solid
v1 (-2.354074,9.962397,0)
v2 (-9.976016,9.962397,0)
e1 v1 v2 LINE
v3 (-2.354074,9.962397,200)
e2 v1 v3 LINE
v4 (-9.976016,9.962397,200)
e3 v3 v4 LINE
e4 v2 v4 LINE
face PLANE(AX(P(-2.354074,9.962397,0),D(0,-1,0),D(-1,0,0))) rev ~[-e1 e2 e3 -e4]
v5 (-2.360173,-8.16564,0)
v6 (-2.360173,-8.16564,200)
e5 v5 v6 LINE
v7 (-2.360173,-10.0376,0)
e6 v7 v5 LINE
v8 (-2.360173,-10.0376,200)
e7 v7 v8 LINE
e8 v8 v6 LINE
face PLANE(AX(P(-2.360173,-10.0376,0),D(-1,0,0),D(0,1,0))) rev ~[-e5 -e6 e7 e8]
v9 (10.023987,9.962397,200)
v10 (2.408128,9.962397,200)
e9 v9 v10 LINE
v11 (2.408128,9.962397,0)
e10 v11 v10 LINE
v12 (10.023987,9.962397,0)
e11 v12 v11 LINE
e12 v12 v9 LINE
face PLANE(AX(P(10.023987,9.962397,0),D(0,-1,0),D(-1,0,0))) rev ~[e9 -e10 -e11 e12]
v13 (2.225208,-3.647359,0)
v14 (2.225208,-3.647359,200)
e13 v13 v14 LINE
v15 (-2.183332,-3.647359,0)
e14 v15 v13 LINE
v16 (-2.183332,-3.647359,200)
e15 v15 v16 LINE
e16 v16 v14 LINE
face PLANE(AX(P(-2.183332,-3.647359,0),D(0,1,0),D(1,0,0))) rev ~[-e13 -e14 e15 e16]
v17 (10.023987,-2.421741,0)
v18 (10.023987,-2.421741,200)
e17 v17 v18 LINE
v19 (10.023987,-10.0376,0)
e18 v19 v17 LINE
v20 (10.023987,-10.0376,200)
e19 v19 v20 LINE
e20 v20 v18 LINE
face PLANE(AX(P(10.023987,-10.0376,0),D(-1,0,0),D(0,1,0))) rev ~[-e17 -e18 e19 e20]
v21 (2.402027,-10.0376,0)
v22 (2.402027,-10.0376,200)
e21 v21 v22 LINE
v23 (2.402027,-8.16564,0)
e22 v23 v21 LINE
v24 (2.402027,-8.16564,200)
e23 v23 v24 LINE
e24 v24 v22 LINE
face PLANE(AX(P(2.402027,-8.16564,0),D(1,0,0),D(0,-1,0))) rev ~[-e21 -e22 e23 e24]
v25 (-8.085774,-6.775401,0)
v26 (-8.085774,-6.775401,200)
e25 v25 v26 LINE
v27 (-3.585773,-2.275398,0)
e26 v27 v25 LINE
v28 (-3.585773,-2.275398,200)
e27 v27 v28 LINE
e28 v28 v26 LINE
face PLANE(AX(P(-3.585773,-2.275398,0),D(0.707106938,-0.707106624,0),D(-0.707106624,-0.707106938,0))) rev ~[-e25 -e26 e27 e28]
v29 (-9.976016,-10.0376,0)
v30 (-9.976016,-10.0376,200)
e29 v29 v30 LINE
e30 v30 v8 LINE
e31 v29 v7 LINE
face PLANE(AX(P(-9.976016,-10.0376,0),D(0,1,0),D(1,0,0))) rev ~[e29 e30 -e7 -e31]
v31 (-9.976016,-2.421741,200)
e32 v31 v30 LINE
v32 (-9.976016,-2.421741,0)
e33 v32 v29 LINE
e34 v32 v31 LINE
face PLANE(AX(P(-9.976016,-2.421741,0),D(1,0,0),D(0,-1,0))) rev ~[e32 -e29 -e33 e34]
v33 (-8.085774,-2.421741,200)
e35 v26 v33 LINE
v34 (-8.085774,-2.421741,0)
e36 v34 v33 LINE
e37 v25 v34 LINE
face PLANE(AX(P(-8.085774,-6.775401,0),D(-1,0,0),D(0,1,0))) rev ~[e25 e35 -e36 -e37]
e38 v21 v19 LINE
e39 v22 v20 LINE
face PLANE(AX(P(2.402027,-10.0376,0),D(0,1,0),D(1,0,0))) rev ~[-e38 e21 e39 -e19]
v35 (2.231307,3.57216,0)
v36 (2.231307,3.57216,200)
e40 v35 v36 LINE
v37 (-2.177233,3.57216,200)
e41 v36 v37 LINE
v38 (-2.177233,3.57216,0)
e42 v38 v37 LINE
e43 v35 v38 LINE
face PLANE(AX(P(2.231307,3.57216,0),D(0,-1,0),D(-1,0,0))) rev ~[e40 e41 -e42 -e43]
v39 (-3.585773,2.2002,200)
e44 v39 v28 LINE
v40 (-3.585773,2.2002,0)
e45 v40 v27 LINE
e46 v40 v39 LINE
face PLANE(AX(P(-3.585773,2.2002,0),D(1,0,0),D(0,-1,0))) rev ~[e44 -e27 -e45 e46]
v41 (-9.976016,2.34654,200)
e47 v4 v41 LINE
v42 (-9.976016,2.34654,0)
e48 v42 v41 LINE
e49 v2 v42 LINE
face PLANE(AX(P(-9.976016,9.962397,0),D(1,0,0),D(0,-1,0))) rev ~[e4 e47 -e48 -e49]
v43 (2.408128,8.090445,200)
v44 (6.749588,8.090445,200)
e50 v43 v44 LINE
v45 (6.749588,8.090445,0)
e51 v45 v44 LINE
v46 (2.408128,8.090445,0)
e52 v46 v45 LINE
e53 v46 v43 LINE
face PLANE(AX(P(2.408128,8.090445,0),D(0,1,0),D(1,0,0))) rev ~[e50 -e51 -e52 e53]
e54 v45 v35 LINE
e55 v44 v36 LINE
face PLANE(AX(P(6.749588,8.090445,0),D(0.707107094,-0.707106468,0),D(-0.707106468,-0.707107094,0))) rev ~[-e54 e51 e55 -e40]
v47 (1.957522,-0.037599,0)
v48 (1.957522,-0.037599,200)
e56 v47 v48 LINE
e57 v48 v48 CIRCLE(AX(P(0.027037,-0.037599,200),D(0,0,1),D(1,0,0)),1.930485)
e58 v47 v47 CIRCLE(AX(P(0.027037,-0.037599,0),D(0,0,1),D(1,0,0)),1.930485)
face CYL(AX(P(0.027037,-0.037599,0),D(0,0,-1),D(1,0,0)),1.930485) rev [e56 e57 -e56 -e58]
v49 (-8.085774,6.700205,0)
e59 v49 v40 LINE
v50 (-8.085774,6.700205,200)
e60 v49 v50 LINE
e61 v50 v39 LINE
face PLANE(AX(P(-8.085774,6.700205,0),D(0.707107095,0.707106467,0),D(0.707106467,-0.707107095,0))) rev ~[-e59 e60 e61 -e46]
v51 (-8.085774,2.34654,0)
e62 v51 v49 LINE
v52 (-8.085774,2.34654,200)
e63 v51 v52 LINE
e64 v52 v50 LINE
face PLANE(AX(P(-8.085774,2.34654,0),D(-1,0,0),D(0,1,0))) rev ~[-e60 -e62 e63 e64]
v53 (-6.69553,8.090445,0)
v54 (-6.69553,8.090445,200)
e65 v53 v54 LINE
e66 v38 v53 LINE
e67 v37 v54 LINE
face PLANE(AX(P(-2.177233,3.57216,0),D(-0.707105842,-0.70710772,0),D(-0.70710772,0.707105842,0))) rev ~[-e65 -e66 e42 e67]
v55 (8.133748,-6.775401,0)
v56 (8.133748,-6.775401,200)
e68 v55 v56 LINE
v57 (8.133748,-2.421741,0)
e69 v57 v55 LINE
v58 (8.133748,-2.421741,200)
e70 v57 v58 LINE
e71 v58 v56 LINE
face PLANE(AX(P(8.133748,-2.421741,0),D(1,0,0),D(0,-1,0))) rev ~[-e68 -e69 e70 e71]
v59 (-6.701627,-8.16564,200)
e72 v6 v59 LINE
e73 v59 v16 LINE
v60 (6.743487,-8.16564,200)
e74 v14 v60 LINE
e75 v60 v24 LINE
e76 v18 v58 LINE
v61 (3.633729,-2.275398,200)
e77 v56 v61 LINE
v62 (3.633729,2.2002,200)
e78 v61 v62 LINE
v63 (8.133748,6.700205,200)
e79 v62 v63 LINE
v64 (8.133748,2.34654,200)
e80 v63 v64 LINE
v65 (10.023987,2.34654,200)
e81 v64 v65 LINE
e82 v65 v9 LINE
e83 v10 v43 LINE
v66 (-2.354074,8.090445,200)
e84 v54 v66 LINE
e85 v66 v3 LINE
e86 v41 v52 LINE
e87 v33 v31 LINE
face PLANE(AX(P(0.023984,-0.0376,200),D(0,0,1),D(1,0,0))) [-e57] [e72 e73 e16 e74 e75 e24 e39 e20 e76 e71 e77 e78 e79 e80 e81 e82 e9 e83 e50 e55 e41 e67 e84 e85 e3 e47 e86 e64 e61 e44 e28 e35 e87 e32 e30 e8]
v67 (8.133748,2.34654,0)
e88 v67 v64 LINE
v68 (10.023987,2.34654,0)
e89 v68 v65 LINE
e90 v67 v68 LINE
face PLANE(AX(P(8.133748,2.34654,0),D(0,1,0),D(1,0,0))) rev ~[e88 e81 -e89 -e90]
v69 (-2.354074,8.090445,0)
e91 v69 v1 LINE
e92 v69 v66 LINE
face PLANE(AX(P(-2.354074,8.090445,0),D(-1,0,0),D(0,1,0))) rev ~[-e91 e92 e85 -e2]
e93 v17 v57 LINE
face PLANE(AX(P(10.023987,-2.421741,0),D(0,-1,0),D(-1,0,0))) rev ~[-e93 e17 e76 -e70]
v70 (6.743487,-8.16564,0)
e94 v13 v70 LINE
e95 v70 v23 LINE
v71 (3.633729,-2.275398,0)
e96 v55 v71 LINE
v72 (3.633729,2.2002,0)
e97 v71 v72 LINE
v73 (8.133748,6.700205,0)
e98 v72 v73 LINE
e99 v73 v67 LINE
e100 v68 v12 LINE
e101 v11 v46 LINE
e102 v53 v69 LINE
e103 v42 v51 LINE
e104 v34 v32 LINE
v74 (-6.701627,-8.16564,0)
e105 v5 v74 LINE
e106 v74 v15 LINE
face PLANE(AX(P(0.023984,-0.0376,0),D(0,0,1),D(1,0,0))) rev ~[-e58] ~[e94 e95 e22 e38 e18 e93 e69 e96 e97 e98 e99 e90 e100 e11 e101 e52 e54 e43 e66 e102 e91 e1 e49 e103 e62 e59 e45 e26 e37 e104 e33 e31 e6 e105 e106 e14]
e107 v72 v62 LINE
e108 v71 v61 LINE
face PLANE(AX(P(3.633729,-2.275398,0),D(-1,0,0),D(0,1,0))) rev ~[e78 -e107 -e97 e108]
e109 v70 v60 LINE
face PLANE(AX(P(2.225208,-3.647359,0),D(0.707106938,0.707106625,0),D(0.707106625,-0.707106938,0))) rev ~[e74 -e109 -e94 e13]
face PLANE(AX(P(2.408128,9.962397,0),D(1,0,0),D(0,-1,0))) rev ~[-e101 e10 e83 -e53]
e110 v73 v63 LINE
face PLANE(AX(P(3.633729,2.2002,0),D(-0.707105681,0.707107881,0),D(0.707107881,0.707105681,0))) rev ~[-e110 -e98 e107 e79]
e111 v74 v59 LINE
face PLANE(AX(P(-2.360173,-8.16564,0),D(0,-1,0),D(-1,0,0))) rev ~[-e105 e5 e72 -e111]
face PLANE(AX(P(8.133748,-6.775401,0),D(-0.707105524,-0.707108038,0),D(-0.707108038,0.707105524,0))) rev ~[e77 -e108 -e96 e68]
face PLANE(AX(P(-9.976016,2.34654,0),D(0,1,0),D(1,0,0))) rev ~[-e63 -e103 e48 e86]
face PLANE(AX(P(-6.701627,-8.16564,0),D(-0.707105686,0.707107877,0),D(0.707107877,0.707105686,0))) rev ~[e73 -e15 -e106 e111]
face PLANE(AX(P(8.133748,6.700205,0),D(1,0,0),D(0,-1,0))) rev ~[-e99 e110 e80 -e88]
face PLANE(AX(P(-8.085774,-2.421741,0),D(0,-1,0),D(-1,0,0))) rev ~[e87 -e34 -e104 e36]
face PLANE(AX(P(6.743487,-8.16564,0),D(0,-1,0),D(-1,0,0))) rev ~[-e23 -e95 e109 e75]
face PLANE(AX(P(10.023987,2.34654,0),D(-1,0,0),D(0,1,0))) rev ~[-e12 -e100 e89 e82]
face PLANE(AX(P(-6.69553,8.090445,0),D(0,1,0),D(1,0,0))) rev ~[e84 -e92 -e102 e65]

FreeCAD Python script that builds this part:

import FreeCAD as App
import Part
import Sketcher

V = App.Vector


def add_polygon(sketch, points):
    """Adds a closed chain of lines whose ends are joined by coincident constraints."""
    first, n = sketch.GeometryCount, len(points)
    for a, b in zip(points, points[1:] + points[:1]):
        sketch.addGeometry(Part.LineSegment(App.Vector(*a, 0), App.Vector(*b, 0)), False)
    for i in range(n):
        sketch.addConstraint(Sketcher.Constraint("Coincident", first + i, 2, first + (i + 1) % n, 1))

doc = App.newDocument("Part")
params = doc.addObject("Spreadsheet::Sheet", "Params")
for row, (alias, value) in enumerate([
    ("pad1_length", "200 mm"),
], start=1):
    params.set(f"A{row}", alias)
    params.set(f"B{row}", "=" + value)
    params.setAlias(f"B{row}", alias)

body = doc.addObject("PartDesign::Body", "Body")

# Sketch on XY plane
sketch1 = body.newObject("Sketcher::SketchObject", "Sketch")
sketch1.AttachmentSupport = (doc.getObject("XY_Plane"), [""])
sketch1.MapMode = "FlatFace"
add_polygon(sketch1, [(-2.354074, 9.962397), (-9.976016, 9.962397), (-9.976016, 2.34654), (-8.085774, 2.34654), (-8.085774, 6.700205), (-3.585773, 2.2002), (-3.585773, -2.275398), (-8.085774, -6.775401), (-8.085774, -2.421741), (-9.976016, -2.421741), (-9.976016, -10.0376), (-2.360173, -10.0376), (-2.360173, -8.16564), (-6.701627, -8.16564), (-2.183332, -3.647359), (2.225208, -3.647359), (6.743487, -8.16564), (2.402027, -8.16564), (2.402027, -10.0376), (10.023987, -10.0376), (10.023987, -2.421741), (8.133748, -2.421741), (8.133748, -6.775401), (3.633729, -2.275398), (3.633729, 2.2002), (8.133748, 6.700205), (8.133748, 2.34654), (10.023987, 2.34654), (10.023987, 9.962397), (2.408128, 9.962397), (2.408128, 8.090445), (6.749588, 8.090445), (2.231307, 3.57216), (-2.177233, 3.57216), (-6.69553, 8.090445), (-2.354074, 8.090445)])  # lines 0-35
sketch1.addGeometry(Part.Circle(V(0.027037, -0.037599, 0), V(0, 0, 1), 1.930485), False)  # 36
sketch1.addConstraint([
    Sketcher.Constraint("Horizontal", 0),
    Sketcher.Constraint("Vertical", 1),
    Sketcher.Constraint("Horizontal", 2),
    Sketcher.Constraint("Vertical", 3),
    Sketcher.Constraint("Vertical", 5),
    Sketcher.Constraint("Vertical", 7),
    Sketcher.Constraint("Horizontal", 8),
    Sketcher.Constraint("Vertical", 9),
    Sketcher.Constraint("Horizontal", 10),
    Sketcher.Constraint("Vertical", 11),
    Sketcher.Constraint("Horizontal", 12),
    Sketcher.Constraint("Horizontal", 14),
    Sketcher.Constraint("Horizontal", 16),
    Sketcher.Constraint("Vertical", 17),
    Sketcher.Constraint("Horizontal", 18),
    Sketcher.Constraint("Vertical", 19),
    Sketcher.Constraint("Horizontal", 20),
    Sketcher.Constraint("Vertical", 21),
    Sketcher.Constraint("Vertical", 23),
    Sketcher.Constraint("Vertical", 25),
    Sketcher.Constraint("Horizontal", 26),
    Sketcher.Constraint("Vertical", 27),
    Sketcher.Constraint("Horizontal", 28),
    Sketcher.Constraint("Vertical", 29),
    Sketcher.Constraint("Horizontal", 30),
    Sketcher.Constraint("Horizontal", 32),
    Sketcher.Constraint("Horizontal", 34),
    Sketcher.Constraint("Vertical", 35),
    Sketcher.Constraint("DistanceY", 10, 2, 36, 3, 10.000001),
    Sketcher.Constraint("DistanceX", 2, 2, 4, 2, 4.500001),
    Sketcher.Constraint("DistanceX", 6, 2, 5, 2, 4.500001),
    Sketcher.Constraint("Diameter", 36, 3.86097),
    Sketcher.Constraint("DistanceX", 0, 2, 0, 1, 7.621942),
    Sketcher.Constraint("DistanceX", 2, 1, 2, 2, 1.890242),
    Sketcher.Constraint("DistanceX", 8, 2, 8, 1, 1.890242),
    Sketcher.Constraint("DistanceX", 14, 1, 14, 2, 4.40854),
    Sketcher.Constraint("DistanceX", 16, 2, 16, 1, 4.34146),
    Sketcher.Constraint("DistanceX", 18, 1, 18, 2, 7.62196),
    Sketcher.Constraint("DistanceX", 20, 2, 20, 1, 1.890239),
    Sketcher.Constraint("DistanceX", 26, 1, 26, 2, 1.890239),
    Sketcher.Constraint("DistanceX", 28, 2, 28, 1, 7.615859),
    Sketcher.Constraint("DistanceX", 30, 1, 30, 2, 4.34146),
    Sketcher.Constraint("DistanceX", 32, 2, 32, 1, 4.40854),
    Sketcher.Constraint("DistanceY", 7, 1, 7, 2, 4.35366),
    Sketcher.Constraint("DistanceY", 9, 2, 9, 1, 7.615859),
    Sketcher.Constraint("DistanceY", 11, 1, 11, 2, 1.87196),
    Sketcher.Constraint("DistanceY", 17, 2, 17, 1, 1.87196),
    Sketcher.Constraint("DistanceY", 19, 1, 19, 2, 7.615859),
    Sketcher.Constraint("DistanceY", 21, 2, 21, 1, 4.35366),
    Sketcher.Constraint("DistanceY", 29, 2, 29, 1, 1.871952),
    Sketcher.Constraint("DistanceY", 35, 1, 35, 2, 1.871952),
    Sketcher.Constraint("DistanceY", 36, 3, -1, 1, 0.037599),
    Sketcher.Constraint("DistanceY", -1, 1, 4, 2, 2.2002),
    Sketcher.Constraint("DistanceY", 5, 2, -1, 1, 2.275398),
    Sketcher.Constraint("DistanceY", 17, 2, -1, 1, 10.0376),
    Sketcher.Constraint("DistanceY", 22, 2, -1, 1, 2.275398),
    Sketcher.Constraint("DistanceY", -1, 1, 23, 2, 2.2002),
    Sketcher.Constraint("DistanceX", 6, 2, 10, 2, 5.725601),
    Sketcher.Constraint("DistanceX", 11, 2, 16, 2, 4.7622),
    Sketcher.Constraint("DistanceX", 28, 2, 23, 2, 1.225601),
    Sketcher.Constraint("DistanceX", 4, 2, 28, 2, 5.993901),
    Sketcher.Constraint("Distance", 24, 6.363978),
    Sketcher.Constraint("Distance", 33, 6.389828),
    Sketcher.Constraint("DistanceX", 12, 2, 12, 1, 4.341454),
    Sketcher.Constraint("DistanceX", 34, 1, 34, 2, 4.341456),
    Sketcher.Constraint("DistanceY", 1, 2, 1, 1, 7.615857),
    Sketcher.Constraint("DistanceY", 3, 1, 3, 2, 4.353665),
    Sketcher.Constraint("DistanceY", 25, 2, 25, 1, 4.353665),
    Sketcher.Constraint("DistanceY", 27, 1, 27, 2, 7.615857),
    Sketcher.Constraint("DistanceY", -1, 1, 1, 2, 2.34654),
    Sketcher.Constraint("DistanceX", 13, 2, -1, 1, 2.183332),
    Sketcher.Constraint("DistanceY", 13, 2, -1, 1, 3.647359),
    Sketcher.Constraint("DistanceX", -1, 1, 20, 2, 8.133748),
    Sketcher.Constraint("DistanceY", -1, 1, 31, 2, 3.57216),
    Sketcher.Constraint("DistanceX", 2, 2, 36, 3, 8.112811),
])
pad1 = body.newObject("PartDesign::Pad", "Pad")
pad1.Profile = sketch1
pad1.setExpression("Length", "Params.pad1_length")

doc.recompute()
